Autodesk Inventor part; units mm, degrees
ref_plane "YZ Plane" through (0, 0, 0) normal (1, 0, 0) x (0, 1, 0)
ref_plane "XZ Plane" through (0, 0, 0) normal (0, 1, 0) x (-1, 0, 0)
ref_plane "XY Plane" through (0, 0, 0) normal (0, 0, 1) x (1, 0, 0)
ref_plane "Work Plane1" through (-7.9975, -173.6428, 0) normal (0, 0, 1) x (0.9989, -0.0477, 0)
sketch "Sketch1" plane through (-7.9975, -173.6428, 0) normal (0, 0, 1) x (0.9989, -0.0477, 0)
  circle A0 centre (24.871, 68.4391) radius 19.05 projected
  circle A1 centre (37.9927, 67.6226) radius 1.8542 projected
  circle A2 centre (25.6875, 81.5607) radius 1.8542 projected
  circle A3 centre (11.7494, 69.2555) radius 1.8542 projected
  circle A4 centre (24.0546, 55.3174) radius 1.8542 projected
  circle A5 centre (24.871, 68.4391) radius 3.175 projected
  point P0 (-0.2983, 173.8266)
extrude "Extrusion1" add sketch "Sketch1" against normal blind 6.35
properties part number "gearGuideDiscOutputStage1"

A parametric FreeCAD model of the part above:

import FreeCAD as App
import Part
import Sketcher
from FreeCAD import Vector
Q = App.Units.Quantity

doc = App.newDocument("Part")
body = doc.addObject("PartDesign::Body", "Body")

# Sketch on XY plane
sketch1 = doc.addObject("Sketcher::SketchObject", "Sketch")
body.addObject(sketch1)
sketch1.AttachmentSupport = (doc.XY_Plane, [""])
sketch1.MapMode = "FlatFace"
sketch1.addGeometry(Part.Circle(Vector(20.109612, -106.467899, 0), Vector(0, 0, 1), 19.05), False)
sketch1.addGeometry(Part.Circle(Vector(18.66826, -119.535723, 0), Vector(0, 0, 1), 1.8542), False)
sketch1.addGeometry(Part.Circle(Vector(33.177431, -107.909351, 0), Vector(0, 0, 1), 1.8542), False)
sketch1.addGeometry(Part.Circle(Vector(7.041888, -105.026552, 0), Vector(0, 0, 1), 1.8542), False)
sketch1.addGeometry(Part.Circle(Vector(20.109612, -106.467899, 0), Vector(0, 0, 1), 3.175), False)
sketch1.addGeometry(Part.Circle(Vector(21.551059, -93.40018, 0), Vector(0, 0, 1), 1.8542), False)
sketch1.addConstraint(Sketcher.Constraint("Coincident", 4, 3, 0, 3))
sketch1.addConstraint(Sketcher.Constraint("Equal", 1, 2))
sketch1.addConstraint(Sketcher.Constraint("Equal", 2, 3))
sketch1.addConstraint(Sketcher.Constraint("Equal", 3, 5))
sketch1.addConstraint(Sketcher.Constraint("Diameter", 0, Q("1.5 in")))
sketch1.addConstraint(Sketcher.Constraint("Diameter", 4, Q("0.25 in")))
sketch1.addConstraint(Sketcher.Constraint("Diameter", 1, Q("0.146 in")))
sketch1.addConstraint(Sketcher.Constraint("DistanceX", -1, 1, 2, 3, Q("1.3062 in")))
sketch1.addConstraint(Sketcher.Constraint("DistanceY", 2, 3, -1, 1, Q("4.2484 in")))
sketch1.addConstraint(Sketcher.Constraint("DistanceY", 3, 3, -1, 1, Q("4.1349 in")))
sketch1.addConstraint(Sketcher.Constraint("DistanceX", 1, 3, 5, 3, Q("0.1135 in")))
sketch1.addConstraint(Sketcher.Constraint("DistanceX", -1, 1, 0, 3, 20.1096))
sketch1.addConstraint(Sketcher.Constraint("DistanceY", 0, 3, -1, 1, 106.468))
sketch1.addConstraint(Sketcher.Constraint("DistanceX", -1, 1, 1, 3, 18.6683))
sketch1.addConstraint(Sketcher.Constraint("DistanceY", 1, 3, -1, 1, 119.5357))
sketch1.addConstraint(Sketcher.Constraint("DistanceX", -1, 1, 3, 3, 7.042))
sketch1.addConstraint(Sketcher.Constraint("DistanceY", 5, 3, -1, 1, 93.4002))
pad1 = doc.addObject("PartDesign::Pad", "Pad")
body.addObject(pad1)
pad1.Profile = sketch1
pad1.Length = Q("0.25 in")
pad1.Reversed = True

doc.recompute()
